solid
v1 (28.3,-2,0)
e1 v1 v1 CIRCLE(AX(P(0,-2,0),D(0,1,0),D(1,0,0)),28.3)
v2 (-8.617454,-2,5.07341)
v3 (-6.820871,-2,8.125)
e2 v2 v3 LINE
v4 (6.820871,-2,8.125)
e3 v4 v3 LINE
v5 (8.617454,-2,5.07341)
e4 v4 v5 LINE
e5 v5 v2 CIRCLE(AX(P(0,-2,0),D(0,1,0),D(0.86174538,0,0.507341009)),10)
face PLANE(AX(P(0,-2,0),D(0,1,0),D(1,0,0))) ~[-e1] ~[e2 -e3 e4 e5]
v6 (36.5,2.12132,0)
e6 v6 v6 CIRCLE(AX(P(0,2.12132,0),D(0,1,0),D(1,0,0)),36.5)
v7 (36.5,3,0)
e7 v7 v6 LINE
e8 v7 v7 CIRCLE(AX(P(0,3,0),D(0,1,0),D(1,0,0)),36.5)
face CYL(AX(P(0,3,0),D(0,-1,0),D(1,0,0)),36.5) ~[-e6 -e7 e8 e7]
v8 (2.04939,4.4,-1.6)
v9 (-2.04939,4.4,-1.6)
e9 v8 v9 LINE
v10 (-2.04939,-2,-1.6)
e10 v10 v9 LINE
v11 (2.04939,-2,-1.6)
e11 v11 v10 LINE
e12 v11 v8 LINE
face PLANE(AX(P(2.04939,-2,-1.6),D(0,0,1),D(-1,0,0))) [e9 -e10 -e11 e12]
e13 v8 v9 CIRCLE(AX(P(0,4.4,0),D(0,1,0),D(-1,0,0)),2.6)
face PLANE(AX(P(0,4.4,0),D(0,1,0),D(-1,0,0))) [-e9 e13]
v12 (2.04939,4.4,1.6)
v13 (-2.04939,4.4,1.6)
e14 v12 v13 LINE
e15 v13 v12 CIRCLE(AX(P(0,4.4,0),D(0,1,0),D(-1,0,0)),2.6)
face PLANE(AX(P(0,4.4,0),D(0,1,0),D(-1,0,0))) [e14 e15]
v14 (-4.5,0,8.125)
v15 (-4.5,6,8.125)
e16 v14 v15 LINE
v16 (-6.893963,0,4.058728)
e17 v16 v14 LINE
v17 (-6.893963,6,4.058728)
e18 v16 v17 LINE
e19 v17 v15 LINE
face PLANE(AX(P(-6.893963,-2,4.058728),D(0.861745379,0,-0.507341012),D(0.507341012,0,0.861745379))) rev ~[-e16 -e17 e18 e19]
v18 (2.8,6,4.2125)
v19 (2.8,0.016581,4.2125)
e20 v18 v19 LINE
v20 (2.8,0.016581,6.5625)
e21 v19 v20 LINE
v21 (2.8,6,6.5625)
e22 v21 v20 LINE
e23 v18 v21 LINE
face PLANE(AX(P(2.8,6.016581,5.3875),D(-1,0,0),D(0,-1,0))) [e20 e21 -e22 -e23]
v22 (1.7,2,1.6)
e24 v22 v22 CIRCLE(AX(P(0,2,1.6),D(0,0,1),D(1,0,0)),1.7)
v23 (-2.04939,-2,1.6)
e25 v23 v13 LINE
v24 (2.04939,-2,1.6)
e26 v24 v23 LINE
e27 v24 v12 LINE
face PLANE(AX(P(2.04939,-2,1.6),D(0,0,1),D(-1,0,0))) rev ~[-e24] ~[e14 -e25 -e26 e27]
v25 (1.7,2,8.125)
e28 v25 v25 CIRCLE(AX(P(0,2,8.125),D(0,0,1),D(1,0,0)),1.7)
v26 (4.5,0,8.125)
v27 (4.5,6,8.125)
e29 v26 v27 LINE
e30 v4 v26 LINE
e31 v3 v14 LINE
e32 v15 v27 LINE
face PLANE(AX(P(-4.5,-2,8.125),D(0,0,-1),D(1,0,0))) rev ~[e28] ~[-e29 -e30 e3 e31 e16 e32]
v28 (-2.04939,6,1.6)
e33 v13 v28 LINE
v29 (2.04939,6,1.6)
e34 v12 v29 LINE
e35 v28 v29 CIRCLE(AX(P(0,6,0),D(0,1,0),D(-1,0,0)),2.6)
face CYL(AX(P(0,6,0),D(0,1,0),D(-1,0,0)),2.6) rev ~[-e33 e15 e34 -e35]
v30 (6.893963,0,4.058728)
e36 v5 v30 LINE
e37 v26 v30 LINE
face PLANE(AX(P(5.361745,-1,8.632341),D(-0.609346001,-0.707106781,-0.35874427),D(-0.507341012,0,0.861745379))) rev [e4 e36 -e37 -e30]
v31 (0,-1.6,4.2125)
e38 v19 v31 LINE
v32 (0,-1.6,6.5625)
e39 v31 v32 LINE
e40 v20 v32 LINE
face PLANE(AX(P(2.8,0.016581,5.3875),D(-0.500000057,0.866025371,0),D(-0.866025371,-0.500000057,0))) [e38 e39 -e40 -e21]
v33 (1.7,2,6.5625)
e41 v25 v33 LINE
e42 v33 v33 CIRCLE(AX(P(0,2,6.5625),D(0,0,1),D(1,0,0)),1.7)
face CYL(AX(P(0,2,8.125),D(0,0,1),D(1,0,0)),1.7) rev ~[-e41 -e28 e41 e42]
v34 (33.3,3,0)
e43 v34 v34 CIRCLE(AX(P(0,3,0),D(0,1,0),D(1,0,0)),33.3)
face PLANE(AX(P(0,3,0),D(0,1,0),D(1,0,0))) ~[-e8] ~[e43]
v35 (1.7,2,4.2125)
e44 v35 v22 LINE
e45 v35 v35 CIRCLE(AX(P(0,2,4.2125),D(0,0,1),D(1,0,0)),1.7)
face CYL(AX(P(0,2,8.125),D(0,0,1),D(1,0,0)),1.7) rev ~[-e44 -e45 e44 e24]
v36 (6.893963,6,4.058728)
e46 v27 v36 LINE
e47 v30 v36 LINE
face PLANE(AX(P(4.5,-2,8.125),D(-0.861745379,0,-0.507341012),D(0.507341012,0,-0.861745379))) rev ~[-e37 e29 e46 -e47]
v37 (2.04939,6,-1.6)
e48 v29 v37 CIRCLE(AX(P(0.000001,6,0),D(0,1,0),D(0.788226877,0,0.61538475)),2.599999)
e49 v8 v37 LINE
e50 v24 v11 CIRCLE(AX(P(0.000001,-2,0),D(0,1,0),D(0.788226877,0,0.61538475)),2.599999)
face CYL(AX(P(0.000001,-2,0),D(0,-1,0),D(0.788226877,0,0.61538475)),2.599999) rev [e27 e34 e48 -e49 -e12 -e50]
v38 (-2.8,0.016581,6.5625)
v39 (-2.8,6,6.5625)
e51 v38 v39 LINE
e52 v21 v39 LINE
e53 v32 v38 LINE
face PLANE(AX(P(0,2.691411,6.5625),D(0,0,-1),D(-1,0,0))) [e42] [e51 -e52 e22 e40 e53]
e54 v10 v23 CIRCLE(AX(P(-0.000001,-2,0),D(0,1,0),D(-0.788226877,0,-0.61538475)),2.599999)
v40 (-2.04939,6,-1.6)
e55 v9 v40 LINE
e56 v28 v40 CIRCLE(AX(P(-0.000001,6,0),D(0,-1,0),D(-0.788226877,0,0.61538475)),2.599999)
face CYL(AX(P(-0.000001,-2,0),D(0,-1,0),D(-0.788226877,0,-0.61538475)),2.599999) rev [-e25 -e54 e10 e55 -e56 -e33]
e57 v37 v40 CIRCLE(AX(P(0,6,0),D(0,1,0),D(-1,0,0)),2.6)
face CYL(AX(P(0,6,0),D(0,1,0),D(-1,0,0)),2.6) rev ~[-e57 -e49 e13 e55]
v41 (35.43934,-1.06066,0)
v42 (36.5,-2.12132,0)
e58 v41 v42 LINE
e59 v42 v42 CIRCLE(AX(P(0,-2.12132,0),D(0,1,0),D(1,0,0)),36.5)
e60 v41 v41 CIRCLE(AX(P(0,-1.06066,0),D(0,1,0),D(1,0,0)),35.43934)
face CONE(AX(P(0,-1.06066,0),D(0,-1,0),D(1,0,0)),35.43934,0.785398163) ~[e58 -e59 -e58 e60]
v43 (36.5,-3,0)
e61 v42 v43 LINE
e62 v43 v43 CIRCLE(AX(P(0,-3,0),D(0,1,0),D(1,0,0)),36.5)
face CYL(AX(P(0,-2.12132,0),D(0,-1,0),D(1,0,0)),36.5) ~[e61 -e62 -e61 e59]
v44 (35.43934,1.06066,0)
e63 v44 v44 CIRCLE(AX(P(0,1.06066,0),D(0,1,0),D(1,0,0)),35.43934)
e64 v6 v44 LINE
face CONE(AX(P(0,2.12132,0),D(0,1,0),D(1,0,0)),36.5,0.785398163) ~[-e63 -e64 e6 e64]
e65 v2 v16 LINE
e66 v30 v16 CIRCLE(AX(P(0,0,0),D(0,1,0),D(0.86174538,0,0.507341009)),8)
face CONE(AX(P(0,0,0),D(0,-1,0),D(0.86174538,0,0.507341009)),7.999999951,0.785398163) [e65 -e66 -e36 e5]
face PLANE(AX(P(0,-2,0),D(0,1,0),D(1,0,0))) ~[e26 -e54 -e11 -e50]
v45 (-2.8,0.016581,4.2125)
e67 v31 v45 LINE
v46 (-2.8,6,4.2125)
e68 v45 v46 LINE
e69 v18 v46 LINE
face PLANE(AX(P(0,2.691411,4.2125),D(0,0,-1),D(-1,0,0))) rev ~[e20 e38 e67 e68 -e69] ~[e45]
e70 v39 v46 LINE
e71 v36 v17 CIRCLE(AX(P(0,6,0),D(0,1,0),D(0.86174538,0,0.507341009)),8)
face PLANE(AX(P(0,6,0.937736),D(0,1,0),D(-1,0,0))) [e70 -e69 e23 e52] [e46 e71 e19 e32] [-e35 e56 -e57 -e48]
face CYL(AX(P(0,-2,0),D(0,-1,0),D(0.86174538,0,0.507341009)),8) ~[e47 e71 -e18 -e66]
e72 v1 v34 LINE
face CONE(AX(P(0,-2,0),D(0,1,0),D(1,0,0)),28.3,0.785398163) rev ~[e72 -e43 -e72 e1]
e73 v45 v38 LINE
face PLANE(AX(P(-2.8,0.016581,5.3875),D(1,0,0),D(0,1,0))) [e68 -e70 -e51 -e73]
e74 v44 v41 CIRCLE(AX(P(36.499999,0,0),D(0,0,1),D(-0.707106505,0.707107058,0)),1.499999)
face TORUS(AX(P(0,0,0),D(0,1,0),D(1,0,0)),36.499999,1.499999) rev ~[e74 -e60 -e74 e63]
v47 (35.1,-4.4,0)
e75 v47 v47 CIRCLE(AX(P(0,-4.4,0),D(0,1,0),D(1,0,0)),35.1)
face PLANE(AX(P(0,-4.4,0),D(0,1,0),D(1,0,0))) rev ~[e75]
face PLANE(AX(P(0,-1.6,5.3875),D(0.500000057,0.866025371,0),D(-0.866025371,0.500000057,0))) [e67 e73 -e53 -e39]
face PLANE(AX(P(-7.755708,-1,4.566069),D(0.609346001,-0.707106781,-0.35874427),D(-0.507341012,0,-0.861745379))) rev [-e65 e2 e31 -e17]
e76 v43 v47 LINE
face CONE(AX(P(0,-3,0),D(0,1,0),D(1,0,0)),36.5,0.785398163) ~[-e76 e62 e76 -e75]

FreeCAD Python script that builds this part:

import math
import FreeCAD as App
import Part
import Sketcher

V = App.Vector
Q = App.Units.Quantity


def edges_at(feature, points):
    """Names of the edges that pass closest to the given points."""
    edges = feature.Shape.Edges
    near = lambda p: min(range(len(edges)), key=lambda i: edges[i].distToShape(Part.Vertex(*p))[0])
    return sorted({f"Edge{near(p) + 1}" for p in points})


def add_polygon(sketch, points):
    """Adds a closed chain of lines whose ends are joined by coincident constraints."""
    first, n = sketch.GeometryCount, len(points)
    for a, b in zip(points, points[1:] + points[:1]):
        sketch.addGeometry(Part.LineSegment(App.Vector(*a, 0), App.Vector(*b, 0)), False)
    for i in range(n):
        sketch.addConstraint(Sketcher.Constraint("Coincident", first + i, 2, first + (i + 1) % n, 1))

doc = App.newDocument("Part")
body = doc.addObject("PartDesign::Body", "Body")

# Sketch on XY plane
sketch1 = body.newObject("Sketcher::SketchObject", "Sketch")
sketch1.AttachmentSupport = (doc.getObject("XY_Plane"), [""])
sketch1.MapMode = "FlatFace"
sketch1.addGeometry([
    Part.LineSegment(V(28.3, -2, 0), V(0, -2, 0)),  # 0
    Part.LineSegment(V(0, -2, 0), V(0, -4.4, 0)),  # 1
    Part.LineSegment(V(0, -4.4, 0), V(35.1, -4.4, 0)),  # 2
    Part.LineSegment(V(35.1, -4.4, 0), V(36.5, -3, 0)),  # 3
    Part.LineSegment(V(36.5, -3, 0), V(36.5, -2.1, 0)),  # 4
    Part.LineSegment(V(36.5, -2.1, 0), V(35.4, -1.1, 0)),  # 5
    Part.ArcOfCircle(Part.Circle(V(36.5, 0, 0), V(0, 0, 1), 1.5), math.radians(135), math.radians(225)),  # 6
    Part.LineSegment(V(35.4, 1.1, 0), V(36.5, 2.1, 0)),  # 7
    Part.LineSegment(V(36.5, 2.1, 0), V(36.5, 3, 0)),  # 8
    Part.LineSegment(V(36.5, 3, 0), V(33.3, 3, 0)),  # 9
    Part.LineSegment(V(33.3, 3, 0), V(28.3, -2, 0)),  # 10
], False)
sketch1.addConstraint([
    Sketcher.Constraint("Coincident", 0, 2, 1, 1),
    Sketcher.Constraint("Coincident", 1, 2, 2, 1),
    Sketcher.Constraint("Coincident", 2, 2, 3, 1),
    Sketcher.Constraint("Coincident", 3, 2, 4, 1),
    Sketcher.Constraint("Coincident", 4, 2, 5, 1),
    Sketcher.Constraint("Tangent", 5, 2, 6, 2),
    Sketcher.Constraint("Tangent", 6, 1, 7, 1),
    Sketcher.Constraint("Coincident", 7, 2, 8, 1),
    Sketcher.Constraint("Coincident", 8, 2, 9, 1),
    Sketcher.Constraint("Coincident", 9, 2, 10, 1),
    Sketcher.Constraint("Coincident", 10, 2, 0, 1),
    Sketcher.Constraint("Horizontal", 0),
    Sketcher.Constraint("Vertical", 1),
    Sketcher.Constraint("Horizontal", 2),
    Sketcher.Constraint("Vertical", 4),
    Sketcher.Constraint("Vertical", 8),
    Sketcher.Constraint("Horizontal", 9),
    Sketcher.Constraint("Symmetric", 5, 2, 6, 1, -1),
    Sketcher.Constraint("Symmetric", 3, 2, 8, 2, -1),
    Sketcher.Constraint("PointOnObject", 0, 2, -2),
    Sketcher.Constraint("Perpendicular", 3, 5),
    Sketcher.Constraint("Perpendicular", 5, 7),
    Sketcher.Constraint("Parallel", 7, 10),
    Sketcher.Constraint("Vertical", 6, 3, 3, 2),
    Sketcher.Constraint("Radius", 6, 1.499999),
    Sketcher.Constraint("DistanceX", 0, 2, 0, 1, 28.3),
    Sketcher.Constraint("DistanceX", 2, 1, 2, 2, 35.1),
    Sketcher.Constraint("DistanceX", 9, 2, 9, 1, 3.2),
    Sketcher.Constraint("DistanceY", 1, 2, 1, 1, 2.4),
    Sketcher.Constraint("DistanceY", 0, 2, -1, 1, 2.0),
])
revolution = body.newObject("PartDesign::Revolution", "Revolution")
revolution.Profile = sketch1
revolution.ReferenceAxis = (sketch1, ["V_Axis"])
revolution.Angle = 360

# Sketch on XZ plane
sketch2 = body.newObject("Sketcher::SketchObject", "Sketch001")
sketch2.AttachmentSupport = (doc.getObject("XZ_Plane"), [""])
sketch2.MapMode = "FlatFace"
sketch2.AttachmentOffset = App.Placement(V(0, 0, 2), App.Rotation())
sketch2.addGeometry([
    Part.LineSegment(V(-4.5, 8.1, 0), V(4.5, 8.1, 0)),  # 0
    Part.LineSegment(V(4.5, 8.1, 0), V(6.9, 4.1, 0)),  # 1
    Part.ArcOfCircle(Part.Circle(V(0, 0, 0), V(0, 0, 1), 8), math.radians(150), math.radians(390)),  # 2
    Part.LineSegment(V(-6.9, 4.1, 0), V(-4.5, 8.1, 0)),  # 3
    Part.ArcOfCircle(Part.Circle(V(0, 0, 0), V(0, 0, 1), 2.6), math.radians(-38), math.radians(38)),  # 4
    Part.LineSegment(V(2, 1.6, 0), V(-2, 1.6, 0)),  # 5
    Part.ArcOfCircle(Part.Circle(V(0, 0, 0), V(0, 0, 1), 2.6), math.radians(142), math.radians(218)),  # 6
    Part.LineSegment(V(-2, -1.6, 0), V(2, -1.6, 0)),  # 7
], False)
sketch2.addConstraint([
    Sketcher.Constraint("Coincident", 0, 2, 1, 1),
    Sketcher.Constraint("Tangent", 1, 2, 2, 2),
    Sketcher.Constraint("Tangent", 2, 1, 3, 1),
    Sketcher.Constraint("Coincident", 3, 2, 0, 1),
    Sketcher.Constraint("Coincident", 4, 2, 5, 1),
    Sketcher.Constraint("Coincident", 5, 2, 6, 1),
    Sketcher.Constraint("Coincident", 6, 2, 7, 1),
    Sketcher.Constraint("Coincident", 7, 2, 4, 1),
    Sketcher.Constraint("Horizontal", 0),
    Sketcher.Constraint("Horizontal", 5),
    Sketcher.Constraint("Horizontal", 7),
    Sketcher.Constraint("Coincident", 2, 3, -1, 1),
    Sketcher.Constraint("Coincident", 4, 3, -1, 1),
    Sketcher.Constraint("Coincident", 6, 3, -1, 1),
    Sketcher.Constraint("Equal", 4, 6),
    Sketcher.Constraint("Horizontal", 1, 2, 2, 1),
    Sketcher.Constraint("Vertical", 5, 2, 6, 2),
    Sketcher.Constraint("Radius", 2, 8.0),
    Sketcher.Constraint("Radius", 4, 2.599999),
    Sketcher.Constraint("DistanceX", 0, 1, 0, 2, 9.0),
    Sketcher.Constraint("DistanceY", -1, 1, 4, 2, 1.6),
    Sketcher.Constraint("DistanceY", -1, 1, 0, 2, 8.125),
])
pad1 = body.newObject("PartDesign::Pad", "Pad")
pad1.Profile = sketch2
pad1.Length = 8
pad1.Reversed = True
doc.recompute()

chamfer = body.newObject("PartDesign::Chamfer", "Chamfer")
chamfer.Base = (pad1, edges_at(pad1, [(0, -2, -8)]))
chamfer.Size = 2

# Sketch on XZ plane
sketch3 = body.newObject("Sketcher::SketchObject", "Sketch002")
sketch3.AttachmentSupport = (doc.getObject("XZ_Plane"), [""])
sketch3.MapMode = "FlatFace"
sketch3.AttachmentOffset = App.Placement(V(0, 0, -6), App.Rotation())
sketch3.addGeometry(Part.Circle(V(0, 0, 0), V(0, 0, 1), 2.6), False)
sketch3.addConstraint([
    Sketcher.Constraint("Coincident", 0, 3, -1, 1),
    Sketcher.Constraint("Diameter", 0, 5.2),
])
pocket1 = body.newObject("PartDesign::Pocket", "Pocket")
pocket1.Profile = sketch3
pocket1.Length = 1.6
pocket1.Reversed = True

# Sketch on XY plane
sketch4 = body.newObject("Sketcher::SketchObject", "Sketch003")
sketch4.AttachmentSupport = (doc.getObject("XY_Plane"), [""])
sketch4.MapMode = "FlatFace"
sketch4.AttachmentOffset = App.Placement(V(0, 0, 8.125), App.Rotation())
sketch4.addGeometry(Part.Circle(V(0, 2, 0), V(0, 0, 1), 1.7), False)
sketch4.addConstraint([
    Sketcher.Constraint("PointOnObject", 0, 3, -2),
    Sketcher.Constraint("Diameter", 0, 3.4),
    Sketcher.Constraint("DistanceY", -1, 1, 0, 3, 2.0),
])
pocket2 = body.newObject("PartDesign::Pocket", "Pocket001")
pocket2.Profile = sketch4
pocket2.Length = 8

# Sketch on XY plane
sketch5 = body.newObject("Sketcher::SketchObject", "Sketch004")
sketch5.AttachmentSupport = (doc.getObject("XY_Plane"), [""])
sketch5.MapMode = "FlatFace"
sketch5.AttachmentOffset = App.Placement(V(0, 0, 5.3875), App.Rotation())
add_polygon(sketch5, [(-2.8, 6), (-2.8, 0), (0, -1.6), (2.8, 0), (2.8, 6)])  # lines 0-4
sketch5.addConstraint([
    Sketcher.Constraint("Vertical", 0),
    Sketcher.Constraint("Vertical", 3),
    Sketcher.Constraint("Horizontal", 4),
    Sketcher.Constraint("Symmetric", 0, 2, 2, 2, -2),
    Sketcher.Constraint("PointOnObject", 1, 2, -2),
    Sketcher.Constraint("DistanceY", 0, 2, 0, 1, 6.0),
    Sketcher.Constraint("Angle", 1, Q("-30.000004 deg")),
    Sketcher.Constraint("DistanceX", 4, 2, 4, 1, 5.6),
    Sketcher.Constraint("DistanceY", 1, 2, -1, 1, 1.6),
])
pocket3 = body.newObject("PartDesign::Pocket", "Pocket002")
pocket3.Profile = sketch5
pocket3.Length = 2.35
pocket3.Midplane = True

doc.recompute()
